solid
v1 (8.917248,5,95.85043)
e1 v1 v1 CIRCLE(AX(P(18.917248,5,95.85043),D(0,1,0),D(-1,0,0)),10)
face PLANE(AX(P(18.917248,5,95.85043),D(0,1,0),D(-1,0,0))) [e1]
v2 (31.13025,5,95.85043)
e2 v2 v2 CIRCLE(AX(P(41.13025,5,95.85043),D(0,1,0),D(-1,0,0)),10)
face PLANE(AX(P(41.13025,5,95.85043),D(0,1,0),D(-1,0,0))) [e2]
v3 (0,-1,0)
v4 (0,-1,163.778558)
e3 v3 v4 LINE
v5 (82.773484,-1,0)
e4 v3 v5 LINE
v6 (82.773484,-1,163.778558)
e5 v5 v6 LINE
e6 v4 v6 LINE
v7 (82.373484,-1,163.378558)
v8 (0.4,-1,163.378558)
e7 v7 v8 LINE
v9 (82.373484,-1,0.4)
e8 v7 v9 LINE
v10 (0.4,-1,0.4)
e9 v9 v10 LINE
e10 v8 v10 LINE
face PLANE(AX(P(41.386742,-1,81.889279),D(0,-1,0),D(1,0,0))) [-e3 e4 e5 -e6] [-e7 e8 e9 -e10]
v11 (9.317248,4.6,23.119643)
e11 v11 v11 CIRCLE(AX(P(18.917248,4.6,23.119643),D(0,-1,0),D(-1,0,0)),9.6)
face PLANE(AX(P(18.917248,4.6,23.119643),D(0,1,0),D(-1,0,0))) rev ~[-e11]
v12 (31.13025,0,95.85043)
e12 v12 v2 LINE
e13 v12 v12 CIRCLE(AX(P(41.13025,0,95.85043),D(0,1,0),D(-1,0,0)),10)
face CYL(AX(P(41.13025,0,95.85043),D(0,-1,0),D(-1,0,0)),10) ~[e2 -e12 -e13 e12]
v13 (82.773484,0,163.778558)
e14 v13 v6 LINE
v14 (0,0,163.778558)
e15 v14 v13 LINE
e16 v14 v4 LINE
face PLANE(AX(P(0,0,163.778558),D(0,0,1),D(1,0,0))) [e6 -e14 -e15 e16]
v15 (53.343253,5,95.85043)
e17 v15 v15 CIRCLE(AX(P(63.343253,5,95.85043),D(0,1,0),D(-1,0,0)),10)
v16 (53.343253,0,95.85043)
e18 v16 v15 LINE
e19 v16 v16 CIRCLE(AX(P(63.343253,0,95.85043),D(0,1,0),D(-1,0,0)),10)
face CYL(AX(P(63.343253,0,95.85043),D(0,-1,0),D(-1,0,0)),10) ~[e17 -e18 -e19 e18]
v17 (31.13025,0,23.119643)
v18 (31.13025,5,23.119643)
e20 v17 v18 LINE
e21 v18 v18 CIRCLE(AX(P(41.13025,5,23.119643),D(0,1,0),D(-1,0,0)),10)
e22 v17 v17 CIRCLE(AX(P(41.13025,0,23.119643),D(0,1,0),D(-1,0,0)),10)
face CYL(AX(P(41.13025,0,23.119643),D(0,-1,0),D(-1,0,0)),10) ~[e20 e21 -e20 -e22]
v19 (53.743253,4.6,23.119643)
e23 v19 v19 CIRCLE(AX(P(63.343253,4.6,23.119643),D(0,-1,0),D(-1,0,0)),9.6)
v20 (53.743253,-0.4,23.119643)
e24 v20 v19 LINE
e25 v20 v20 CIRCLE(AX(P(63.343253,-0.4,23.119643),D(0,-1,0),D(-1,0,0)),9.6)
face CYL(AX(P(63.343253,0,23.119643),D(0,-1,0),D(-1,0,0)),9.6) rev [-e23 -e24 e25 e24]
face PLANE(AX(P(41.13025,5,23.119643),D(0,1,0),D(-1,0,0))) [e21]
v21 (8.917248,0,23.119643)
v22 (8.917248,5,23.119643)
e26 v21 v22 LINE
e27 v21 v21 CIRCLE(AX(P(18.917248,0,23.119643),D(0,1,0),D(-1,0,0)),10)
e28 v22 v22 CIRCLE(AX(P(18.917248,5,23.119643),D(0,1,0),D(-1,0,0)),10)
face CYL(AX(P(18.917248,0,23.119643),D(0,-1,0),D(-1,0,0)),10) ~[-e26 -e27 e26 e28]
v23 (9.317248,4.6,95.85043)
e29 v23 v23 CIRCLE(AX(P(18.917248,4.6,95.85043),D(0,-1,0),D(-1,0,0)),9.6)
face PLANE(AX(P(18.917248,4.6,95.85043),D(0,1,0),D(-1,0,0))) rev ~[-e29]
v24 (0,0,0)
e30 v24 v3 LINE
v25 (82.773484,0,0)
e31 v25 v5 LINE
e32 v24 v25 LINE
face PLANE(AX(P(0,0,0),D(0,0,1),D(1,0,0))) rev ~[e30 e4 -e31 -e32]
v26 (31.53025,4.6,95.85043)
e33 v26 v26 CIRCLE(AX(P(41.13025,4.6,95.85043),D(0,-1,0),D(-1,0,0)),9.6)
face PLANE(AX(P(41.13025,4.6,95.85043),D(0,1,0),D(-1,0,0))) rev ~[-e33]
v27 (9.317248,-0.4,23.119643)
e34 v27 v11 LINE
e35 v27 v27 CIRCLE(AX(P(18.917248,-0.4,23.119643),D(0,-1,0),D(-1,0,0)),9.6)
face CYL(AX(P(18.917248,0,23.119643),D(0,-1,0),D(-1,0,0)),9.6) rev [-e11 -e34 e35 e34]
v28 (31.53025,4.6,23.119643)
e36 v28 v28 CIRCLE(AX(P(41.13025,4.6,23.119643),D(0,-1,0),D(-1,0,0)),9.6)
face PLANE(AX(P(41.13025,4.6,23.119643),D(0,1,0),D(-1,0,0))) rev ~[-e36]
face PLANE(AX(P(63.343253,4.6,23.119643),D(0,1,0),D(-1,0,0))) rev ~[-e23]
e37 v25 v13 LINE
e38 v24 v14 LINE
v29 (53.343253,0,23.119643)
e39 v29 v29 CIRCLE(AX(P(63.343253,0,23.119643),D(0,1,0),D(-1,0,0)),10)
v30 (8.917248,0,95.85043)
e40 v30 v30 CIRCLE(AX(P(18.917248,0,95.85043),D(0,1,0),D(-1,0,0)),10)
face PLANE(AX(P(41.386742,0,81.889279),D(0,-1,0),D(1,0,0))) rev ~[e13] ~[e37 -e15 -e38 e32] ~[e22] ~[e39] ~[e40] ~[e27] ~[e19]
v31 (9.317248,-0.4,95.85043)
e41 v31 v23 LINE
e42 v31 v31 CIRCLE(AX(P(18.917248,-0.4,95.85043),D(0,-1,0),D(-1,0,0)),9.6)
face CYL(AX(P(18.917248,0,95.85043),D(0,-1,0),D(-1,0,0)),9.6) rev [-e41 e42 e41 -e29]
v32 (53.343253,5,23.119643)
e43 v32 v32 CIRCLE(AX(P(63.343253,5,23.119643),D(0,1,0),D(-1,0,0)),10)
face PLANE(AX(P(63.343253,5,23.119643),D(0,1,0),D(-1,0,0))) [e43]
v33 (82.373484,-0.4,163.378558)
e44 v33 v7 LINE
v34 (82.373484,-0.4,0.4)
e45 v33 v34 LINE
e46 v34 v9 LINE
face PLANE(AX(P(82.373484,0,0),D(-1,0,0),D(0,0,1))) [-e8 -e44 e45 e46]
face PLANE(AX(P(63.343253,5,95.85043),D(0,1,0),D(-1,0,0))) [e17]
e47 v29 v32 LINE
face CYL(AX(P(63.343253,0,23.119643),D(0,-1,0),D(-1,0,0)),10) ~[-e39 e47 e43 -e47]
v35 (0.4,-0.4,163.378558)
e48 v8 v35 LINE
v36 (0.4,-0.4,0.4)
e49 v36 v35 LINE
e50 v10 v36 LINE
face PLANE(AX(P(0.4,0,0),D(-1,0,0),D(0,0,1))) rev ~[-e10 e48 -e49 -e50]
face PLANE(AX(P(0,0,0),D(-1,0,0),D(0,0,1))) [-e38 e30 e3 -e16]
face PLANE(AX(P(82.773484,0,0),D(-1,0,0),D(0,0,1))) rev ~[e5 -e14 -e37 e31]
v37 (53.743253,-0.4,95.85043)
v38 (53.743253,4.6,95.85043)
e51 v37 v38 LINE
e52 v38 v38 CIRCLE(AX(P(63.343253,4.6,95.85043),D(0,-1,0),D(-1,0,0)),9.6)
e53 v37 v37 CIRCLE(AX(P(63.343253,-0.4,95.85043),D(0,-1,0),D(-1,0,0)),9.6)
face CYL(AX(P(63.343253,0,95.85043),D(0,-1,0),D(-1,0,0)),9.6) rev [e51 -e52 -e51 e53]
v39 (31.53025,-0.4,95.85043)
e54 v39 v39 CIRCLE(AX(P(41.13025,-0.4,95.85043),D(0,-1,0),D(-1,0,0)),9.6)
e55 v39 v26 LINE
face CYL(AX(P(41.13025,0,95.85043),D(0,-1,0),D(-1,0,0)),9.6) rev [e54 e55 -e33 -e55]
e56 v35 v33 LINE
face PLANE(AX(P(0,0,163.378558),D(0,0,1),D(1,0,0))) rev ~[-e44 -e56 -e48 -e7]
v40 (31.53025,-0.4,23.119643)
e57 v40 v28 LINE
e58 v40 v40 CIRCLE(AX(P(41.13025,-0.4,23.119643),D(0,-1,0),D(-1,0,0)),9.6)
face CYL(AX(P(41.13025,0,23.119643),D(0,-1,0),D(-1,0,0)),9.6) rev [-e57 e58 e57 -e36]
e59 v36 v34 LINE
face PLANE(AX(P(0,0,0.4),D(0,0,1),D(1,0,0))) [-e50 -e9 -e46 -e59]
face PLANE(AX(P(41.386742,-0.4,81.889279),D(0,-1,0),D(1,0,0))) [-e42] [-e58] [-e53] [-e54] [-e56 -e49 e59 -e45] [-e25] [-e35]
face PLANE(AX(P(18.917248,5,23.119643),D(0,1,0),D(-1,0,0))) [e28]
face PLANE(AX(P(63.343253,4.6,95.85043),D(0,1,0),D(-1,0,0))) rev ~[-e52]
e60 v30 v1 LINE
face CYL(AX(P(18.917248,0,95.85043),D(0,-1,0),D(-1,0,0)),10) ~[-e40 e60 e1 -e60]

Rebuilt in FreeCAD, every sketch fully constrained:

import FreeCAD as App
import Part
import Sketcher
Q = App.Units.Quantity


def faces_at(feature, points):
    """Names of the faces that lie closest to the given points."""
    faces = feature.Shape.Faces
    near = lambda p: min(range(len(faces)), key=lambda i: faces[i].distToShape(Part.Vertex(*p))[0])
    return sorted({f"Face{near(p) + 1}" for p in points})

doc = App.newDocument("Part")
body = doc.addObject("PartDesign::Body", "Body")

# Sketch on XZ plane
sketch1 = body.newObject("Sketcher::SketchObject", "Sketch")
sketch1.AttachmentSupport = (doc.getObject("XZ_Plane"), [""])
sketch1.MapMode = "FlatFace"
sketch1.addGeometry([
    Part.LineSegment(App.Vector(0, 164, 0), App.Vector(0, 0, 0)),
    Part.LineSegment(App.Vector(0, 0, 0), App.Vector(83, 0, 0)),
    Part.LineSegment(App.Vector(83, 0, 0), App.Vector(83, 164, 0)),
    Part.LineSegment(App.Vector(83, 164, 0), App.Vector(0, 164, 0)),
], False)
sketch1.addConstraint([
    Sketcher.Constraint("Coincident", 0, 2, 1, 1),
    Sketcher.Constraint("Coincident", 1, 2, 2, 1),
    Sketcher.Constraint("Coincident", 2, 2, 3, 1),
    Sketcher.Constraint("Coincident", 3, 2, 0, 1),
    Sketcher.Constraint("Vertical", 0),
    Sketcher.Constraint("Horizontal", 1),
    Sketcher.Constraint("Vertical", 2),
    Sketcher.Constraint("Horizontal", 3),
    Sketcher.Constraint("Coincident", 0, 2, -1, 1),
    Sketcher.Constraint("DistanceY", 0, 2, 0, 1, Q("163.778558 mm")),
    Sketcher.Constraint("DistanceX", 1, 1, 1, 2, Q("82.773484 mm")),
])
pad1 = body.newObject("PartDesign::Pad", "Pad")
pad1.Profile = sketch1
pad1.Length = 1

# Sketch on XZ plane
sketch2 = body.newObject("Sketcher::SketchObject", "Sketch001")
sketch2.AttachmentSupport = (doc.getObject("XZ_Plane"), [""])
sketch2.MapMode = "FlatFace"
sketch2.addGeometry([
    Part.Circle(App.Vector(19, 23, 0), App.Vector(0, 0, 1), 10),  # 0
    Part.Circle(App.Vector(19, 96, 0), App.Vector(0, 0, 1), 10),  # 1
    Part.Circle(App.Vector(41, 23, 0), App.Vector(0, 0, 1), 10),  # 2
    Part.Circle(App.Vector(41, 96, 0), App.Vector(0, 0, 1), 10),  # 3
    Part.Circle(App.Vector(63, 23, 0), App.Vector(0, 0, 1), 10),  # 4
    Part.Circle(App.Vector(63, 96, 0), App.Vector(0, 0, 1), 10),  # 5
], False)
sketch2.addConstraint([
    Sketcher.Constraint("Equal", 0, 1),
    Sketcher.Constraint("Equal", 1, 2),
    Sketcher.Constraint("Equal", 2, 3),
    Sketcher.Constraint("Equal", 3, 4),
    Sketcher.Constraint("Equal", 4, 5),
    Sketcher.Constraint("Horizontal", 0, 3, 2, 3),
    Sketcher.Constraint("Horizontal", 1, 3, 3, 3),
    Sketcher.Constraint("Horizontal", 2, 3, 4, 3),
    Sketcher.Constraint("Horizontal", 3, 3, 5, 3),
    Sketcher.Constraint("Vertical", 0, 3, 1, 3),
    Sketcher.Constraint("Vertical", 2, 3, 3, 3),
    Sketcher.Constraint("Vertical", 4, 3, 5, 3),
    Sketcher.Constraint("Diameter", 0, Q("20 mm")),
    Sketcher.Constraint("DistanceY", -1, 1, 1, 3, Q("95.85043 mm")),
    Sketcher.Constraint("DistanceX", -1, 1, 2, 3, Q("41.13025 mm")),
    Sketcher.Constraint("DistanceX", -1, 1, 0, 3, Q("18.917248 mm")),
    Sketcher.Constraint("DistanceY", -1, 1, 0, 3, Q("23.119643 mm")),
    Sketcher.Constraint("DistanceX", -1, 1, 4, 3, Q("63.343253 mm")),
])
pad2 = body.newObject("PartDesign::Pad", "Pad001")
pad2.Profile = sketch2
pad2.Length = 5
pad2.Reversed = True
doc.recompute()

thickness = body.newObject("PartDesign::Thickness", "Thickness")
thickness.Base = (pad2, faces_at(pad2, [(41.387, -1, 81.889)]))
thickness.Value = 0.4
thickness.Reversed = True
thickness.Join = "Intersection"

doc.recompute()
